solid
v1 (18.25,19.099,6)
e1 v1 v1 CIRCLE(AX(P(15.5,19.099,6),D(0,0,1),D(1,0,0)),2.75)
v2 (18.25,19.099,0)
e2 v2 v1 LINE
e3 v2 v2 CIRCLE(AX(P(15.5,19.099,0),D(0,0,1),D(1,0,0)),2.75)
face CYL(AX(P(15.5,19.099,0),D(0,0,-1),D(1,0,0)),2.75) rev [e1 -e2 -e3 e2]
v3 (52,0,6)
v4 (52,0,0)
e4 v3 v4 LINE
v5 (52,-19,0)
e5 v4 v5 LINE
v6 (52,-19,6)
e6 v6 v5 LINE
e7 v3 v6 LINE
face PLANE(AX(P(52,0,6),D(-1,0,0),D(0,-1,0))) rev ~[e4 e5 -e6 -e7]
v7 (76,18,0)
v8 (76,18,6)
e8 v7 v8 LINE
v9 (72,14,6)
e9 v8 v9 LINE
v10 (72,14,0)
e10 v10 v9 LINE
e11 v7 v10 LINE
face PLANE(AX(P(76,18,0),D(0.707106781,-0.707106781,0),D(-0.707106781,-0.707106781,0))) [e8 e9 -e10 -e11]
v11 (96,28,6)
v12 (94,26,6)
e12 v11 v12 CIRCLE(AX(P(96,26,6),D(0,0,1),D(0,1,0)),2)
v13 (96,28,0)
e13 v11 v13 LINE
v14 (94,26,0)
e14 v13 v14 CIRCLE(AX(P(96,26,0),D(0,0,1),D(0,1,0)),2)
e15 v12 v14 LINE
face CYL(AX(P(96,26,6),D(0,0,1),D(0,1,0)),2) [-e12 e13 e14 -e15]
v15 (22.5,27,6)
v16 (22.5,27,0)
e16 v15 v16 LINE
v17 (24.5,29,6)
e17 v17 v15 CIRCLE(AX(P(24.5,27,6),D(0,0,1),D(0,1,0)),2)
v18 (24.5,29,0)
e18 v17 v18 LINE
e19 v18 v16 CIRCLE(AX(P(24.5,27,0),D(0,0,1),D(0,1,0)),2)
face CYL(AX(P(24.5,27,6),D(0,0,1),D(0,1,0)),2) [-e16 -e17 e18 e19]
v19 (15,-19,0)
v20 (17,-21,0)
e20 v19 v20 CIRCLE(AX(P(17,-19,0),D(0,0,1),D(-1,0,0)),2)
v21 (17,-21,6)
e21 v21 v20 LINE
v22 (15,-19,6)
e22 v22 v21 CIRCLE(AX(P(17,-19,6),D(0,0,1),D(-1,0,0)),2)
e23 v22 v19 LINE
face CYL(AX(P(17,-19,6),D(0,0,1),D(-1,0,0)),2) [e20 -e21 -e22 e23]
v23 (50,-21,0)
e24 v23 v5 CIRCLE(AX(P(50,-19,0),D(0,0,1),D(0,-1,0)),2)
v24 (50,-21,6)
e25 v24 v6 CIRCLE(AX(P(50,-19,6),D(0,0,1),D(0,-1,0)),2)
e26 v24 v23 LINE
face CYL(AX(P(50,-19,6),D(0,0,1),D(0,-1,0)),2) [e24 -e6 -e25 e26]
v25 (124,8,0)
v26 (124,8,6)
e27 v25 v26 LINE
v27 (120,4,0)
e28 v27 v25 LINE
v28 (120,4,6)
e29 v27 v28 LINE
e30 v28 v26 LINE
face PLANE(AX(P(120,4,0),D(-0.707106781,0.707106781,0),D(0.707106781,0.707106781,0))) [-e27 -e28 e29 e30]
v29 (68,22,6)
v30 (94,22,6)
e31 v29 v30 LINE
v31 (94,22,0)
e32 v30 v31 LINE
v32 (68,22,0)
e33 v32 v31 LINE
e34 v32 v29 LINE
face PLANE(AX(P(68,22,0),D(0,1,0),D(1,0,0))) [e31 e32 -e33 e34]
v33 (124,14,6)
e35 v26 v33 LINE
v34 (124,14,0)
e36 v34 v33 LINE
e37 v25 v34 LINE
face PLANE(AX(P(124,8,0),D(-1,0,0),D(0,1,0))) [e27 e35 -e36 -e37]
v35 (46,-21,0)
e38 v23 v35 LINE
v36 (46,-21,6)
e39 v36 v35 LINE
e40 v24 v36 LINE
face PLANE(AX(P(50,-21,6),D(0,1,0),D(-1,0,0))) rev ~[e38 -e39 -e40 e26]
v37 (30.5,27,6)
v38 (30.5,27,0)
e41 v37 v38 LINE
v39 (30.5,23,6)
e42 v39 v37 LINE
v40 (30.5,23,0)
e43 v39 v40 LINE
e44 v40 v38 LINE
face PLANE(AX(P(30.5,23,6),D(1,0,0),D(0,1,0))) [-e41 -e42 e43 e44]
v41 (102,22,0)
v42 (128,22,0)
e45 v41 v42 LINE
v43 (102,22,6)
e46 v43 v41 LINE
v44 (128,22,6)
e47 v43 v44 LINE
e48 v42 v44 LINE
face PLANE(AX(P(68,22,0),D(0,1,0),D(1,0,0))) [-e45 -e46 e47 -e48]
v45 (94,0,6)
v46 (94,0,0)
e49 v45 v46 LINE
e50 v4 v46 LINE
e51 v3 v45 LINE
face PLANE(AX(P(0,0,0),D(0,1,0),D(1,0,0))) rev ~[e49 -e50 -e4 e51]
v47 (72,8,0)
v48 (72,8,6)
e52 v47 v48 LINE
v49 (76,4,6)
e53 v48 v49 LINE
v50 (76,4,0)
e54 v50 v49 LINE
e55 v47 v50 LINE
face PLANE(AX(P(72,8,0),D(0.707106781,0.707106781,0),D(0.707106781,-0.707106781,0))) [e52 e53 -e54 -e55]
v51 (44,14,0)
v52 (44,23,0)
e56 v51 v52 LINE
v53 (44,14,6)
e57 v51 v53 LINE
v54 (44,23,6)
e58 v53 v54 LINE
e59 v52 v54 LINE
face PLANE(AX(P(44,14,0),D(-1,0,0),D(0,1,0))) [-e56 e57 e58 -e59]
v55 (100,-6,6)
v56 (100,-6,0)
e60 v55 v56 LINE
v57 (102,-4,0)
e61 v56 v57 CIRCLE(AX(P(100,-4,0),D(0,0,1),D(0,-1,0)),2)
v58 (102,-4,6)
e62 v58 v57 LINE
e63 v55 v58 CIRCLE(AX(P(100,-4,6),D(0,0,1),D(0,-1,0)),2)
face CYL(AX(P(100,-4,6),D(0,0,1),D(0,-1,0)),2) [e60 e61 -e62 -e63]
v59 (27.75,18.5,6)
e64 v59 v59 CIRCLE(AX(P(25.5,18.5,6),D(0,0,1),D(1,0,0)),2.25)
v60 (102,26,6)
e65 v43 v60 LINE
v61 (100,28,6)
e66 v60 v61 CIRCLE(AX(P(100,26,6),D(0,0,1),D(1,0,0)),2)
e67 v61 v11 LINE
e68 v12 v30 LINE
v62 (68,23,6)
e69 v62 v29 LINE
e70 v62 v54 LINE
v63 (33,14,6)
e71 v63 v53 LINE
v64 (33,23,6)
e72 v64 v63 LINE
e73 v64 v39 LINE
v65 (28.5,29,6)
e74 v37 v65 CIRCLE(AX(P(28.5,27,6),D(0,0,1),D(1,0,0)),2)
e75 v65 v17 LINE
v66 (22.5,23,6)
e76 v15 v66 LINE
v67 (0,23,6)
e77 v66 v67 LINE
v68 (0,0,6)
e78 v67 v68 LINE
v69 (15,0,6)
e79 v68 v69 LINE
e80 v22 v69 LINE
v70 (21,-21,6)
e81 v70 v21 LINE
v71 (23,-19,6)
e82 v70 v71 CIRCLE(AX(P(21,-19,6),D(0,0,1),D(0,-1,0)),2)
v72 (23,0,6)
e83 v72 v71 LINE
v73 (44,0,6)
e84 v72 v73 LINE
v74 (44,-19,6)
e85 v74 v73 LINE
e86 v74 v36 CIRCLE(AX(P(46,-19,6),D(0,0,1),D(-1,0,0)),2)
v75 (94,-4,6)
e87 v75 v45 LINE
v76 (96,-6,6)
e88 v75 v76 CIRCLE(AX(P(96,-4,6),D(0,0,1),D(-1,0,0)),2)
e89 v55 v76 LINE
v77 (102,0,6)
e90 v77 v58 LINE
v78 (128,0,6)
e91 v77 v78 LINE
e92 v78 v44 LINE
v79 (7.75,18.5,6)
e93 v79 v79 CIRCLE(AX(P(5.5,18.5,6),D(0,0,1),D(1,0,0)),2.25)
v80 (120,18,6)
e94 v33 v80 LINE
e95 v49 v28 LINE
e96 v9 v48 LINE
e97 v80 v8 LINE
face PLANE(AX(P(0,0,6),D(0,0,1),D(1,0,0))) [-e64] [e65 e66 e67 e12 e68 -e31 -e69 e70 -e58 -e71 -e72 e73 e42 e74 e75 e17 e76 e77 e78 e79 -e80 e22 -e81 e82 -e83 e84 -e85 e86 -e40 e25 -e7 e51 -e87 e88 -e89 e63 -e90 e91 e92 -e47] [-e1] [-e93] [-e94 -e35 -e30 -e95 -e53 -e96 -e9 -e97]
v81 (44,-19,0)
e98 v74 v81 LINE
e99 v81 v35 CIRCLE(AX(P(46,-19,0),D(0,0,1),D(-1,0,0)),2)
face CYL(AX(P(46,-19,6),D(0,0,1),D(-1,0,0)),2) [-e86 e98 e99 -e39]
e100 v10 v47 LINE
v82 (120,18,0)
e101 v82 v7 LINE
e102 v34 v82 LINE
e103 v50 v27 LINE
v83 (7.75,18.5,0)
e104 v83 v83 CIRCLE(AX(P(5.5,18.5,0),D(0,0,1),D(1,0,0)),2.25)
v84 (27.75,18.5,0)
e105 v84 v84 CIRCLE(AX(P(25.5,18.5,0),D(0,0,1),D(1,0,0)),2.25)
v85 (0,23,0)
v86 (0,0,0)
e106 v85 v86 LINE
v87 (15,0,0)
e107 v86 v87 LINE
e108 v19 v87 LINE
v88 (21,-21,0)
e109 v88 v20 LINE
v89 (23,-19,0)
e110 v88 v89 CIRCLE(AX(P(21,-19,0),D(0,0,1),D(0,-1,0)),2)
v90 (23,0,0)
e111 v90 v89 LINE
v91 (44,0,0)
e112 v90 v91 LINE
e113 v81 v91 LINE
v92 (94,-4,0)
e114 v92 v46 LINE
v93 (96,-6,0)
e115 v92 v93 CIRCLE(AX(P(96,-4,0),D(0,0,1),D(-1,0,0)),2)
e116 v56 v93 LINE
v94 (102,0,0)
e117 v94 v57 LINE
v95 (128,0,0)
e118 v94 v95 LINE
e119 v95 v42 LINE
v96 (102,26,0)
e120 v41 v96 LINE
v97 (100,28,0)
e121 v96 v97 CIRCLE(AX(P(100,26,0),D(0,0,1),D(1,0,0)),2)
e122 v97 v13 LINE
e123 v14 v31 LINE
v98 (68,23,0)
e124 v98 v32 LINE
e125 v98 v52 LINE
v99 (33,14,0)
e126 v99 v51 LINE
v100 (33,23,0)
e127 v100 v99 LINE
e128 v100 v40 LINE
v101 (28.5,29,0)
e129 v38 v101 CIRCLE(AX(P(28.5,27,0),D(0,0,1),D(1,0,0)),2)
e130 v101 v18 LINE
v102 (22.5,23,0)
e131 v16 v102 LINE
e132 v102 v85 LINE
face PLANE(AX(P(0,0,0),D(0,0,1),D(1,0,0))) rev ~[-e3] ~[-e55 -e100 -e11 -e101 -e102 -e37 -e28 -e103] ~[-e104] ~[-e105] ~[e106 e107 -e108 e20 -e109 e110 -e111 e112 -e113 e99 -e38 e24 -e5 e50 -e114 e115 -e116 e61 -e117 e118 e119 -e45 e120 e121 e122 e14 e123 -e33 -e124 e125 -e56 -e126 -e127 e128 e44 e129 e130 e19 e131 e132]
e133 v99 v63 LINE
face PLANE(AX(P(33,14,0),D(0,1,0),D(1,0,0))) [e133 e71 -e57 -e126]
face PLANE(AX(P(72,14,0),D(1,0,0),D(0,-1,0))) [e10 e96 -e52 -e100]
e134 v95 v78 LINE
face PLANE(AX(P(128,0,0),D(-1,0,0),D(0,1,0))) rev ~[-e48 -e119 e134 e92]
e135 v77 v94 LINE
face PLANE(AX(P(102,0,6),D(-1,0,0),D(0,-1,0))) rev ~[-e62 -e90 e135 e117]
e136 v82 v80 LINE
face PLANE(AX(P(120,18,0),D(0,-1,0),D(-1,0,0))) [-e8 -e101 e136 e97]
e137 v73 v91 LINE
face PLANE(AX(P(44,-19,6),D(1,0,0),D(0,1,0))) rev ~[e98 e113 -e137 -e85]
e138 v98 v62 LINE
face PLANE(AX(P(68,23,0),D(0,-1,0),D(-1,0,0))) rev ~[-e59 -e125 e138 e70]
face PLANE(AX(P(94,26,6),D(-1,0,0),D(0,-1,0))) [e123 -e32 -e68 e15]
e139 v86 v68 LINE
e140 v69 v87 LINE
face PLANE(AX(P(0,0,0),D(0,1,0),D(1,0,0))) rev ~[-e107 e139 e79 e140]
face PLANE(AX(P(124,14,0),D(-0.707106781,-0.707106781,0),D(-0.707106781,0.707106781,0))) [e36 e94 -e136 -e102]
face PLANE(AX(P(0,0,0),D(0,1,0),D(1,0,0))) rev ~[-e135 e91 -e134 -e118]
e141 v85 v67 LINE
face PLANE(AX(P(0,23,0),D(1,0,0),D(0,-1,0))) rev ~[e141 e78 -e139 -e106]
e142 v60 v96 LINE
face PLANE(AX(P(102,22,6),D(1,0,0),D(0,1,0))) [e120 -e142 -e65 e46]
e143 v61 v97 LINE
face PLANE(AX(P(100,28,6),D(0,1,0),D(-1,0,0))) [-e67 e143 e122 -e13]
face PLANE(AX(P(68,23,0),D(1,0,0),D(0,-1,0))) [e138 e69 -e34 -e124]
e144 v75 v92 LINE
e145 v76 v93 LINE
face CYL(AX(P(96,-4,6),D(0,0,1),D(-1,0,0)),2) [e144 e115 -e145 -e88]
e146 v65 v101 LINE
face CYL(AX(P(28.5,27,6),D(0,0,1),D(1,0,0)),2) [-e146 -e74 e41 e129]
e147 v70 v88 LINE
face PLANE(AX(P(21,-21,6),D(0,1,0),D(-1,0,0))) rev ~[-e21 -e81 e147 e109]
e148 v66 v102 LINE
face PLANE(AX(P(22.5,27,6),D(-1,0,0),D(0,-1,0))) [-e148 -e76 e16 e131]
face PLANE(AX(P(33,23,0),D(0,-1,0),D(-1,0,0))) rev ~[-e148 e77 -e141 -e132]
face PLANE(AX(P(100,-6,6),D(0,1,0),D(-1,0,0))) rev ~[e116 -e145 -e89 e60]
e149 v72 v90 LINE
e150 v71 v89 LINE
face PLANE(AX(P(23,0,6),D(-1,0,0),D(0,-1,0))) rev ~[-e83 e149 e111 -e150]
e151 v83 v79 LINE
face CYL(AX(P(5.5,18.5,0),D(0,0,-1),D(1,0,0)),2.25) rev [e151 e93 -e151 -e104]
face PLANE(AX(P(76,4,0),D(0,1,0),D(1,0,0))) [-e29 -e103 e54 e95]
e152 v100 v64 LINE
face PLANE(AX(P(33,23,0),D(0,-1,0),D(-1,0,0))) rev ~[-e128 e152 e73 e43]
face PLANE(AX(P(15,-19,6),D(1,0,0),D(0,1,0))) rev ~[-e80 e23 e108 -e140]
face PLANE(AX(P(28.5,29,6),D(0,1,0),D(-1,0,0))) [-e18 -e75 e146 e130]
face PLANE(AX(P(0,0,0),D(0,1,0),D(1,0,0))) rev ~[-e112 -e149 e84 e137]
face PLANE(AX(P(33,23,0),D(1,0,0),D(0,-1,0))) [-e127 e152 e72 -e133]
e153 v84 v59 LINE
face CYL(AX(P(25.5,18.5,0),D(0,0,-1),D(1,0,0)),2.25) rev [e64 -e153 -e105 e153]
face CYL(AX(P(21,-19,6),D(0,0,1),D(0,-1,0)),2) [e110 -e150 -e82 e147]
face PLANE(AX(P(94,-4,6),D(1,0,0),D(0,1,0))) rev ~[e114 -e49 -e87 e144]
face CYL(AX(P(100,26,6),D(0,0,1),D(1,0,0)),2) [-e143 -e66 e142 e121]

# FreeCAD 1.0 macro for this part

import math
import FreeCAD as App
import Part
import Sketcher
Q = App.Units.Quantity

doc = App.newDocument("Part")
body = doc.addObject("PartDesign::Body", "Body")

# Sketch on XY plane
sketch1 = body.newObject("Sketcher::SketchObject", "Sketch")
sketch1.AttachmentSupport = (doc.getObject("XY_Plane"), [""])
sketch1.MapMode = "FlatFace"
sketch1.addGeometry([
    Part.LineSegment(App.Vector(0, 23, 0), App.Vector(0, 0, 0)),  # 0
    Part.LineSegment(App.Vector(0, 0, 0), App.Vector(128, 0, 0)),  # 1
    Part.LineSegment(App.Vector(128, 0, 0), App.Vector(128, 22, 0)),  # 2
    Part.LineSegment(App.Vector(128, 22, 0), App.Vector(68, 22, 0)),  # 3
    Part.LineSegment(App.Vector(68, 22, 0), App.Vector(68, 23, 0)),  # 4
    Part.LineSegment(App.Vector(68, 23, 0), App.Vector(44, 23, 0)),  # 5
    Part.LineSegment(App.Vector(44, 23, 0), App.Vector(44, 14, 0)),  # 6
    Part.LineSegment(App.Vector(44, 14, 0), App.Vector(33, 14, 0)),  # 7
    Part.LineSegment(App.Vector(33, 14, 0), App.Vector(33, 23, 0)),  # 8
    Part.LineSegment(App.Vector(33, 23, 0), App.Vector(0, 23, 0)),  # 9
    Part.LineSegment(App.Vector(72, 8, 0), App.Vector(72, 14, 0)),  # 10
    Part.LineSegment(App.Vector(72, 14, 0), App.Vector(76, 18, 0)),  # 11
    Part.LineSegment(App.Vector(76, 18, 0), App.Vector(120, 18, 0)),  # 12
    Part.LineSegment(App.Vector(120, 18, 0), App.Vector(124, 14, 0)),  # 13
    Part.LineSegment(App.Vector(124, 14, 0), App.Vector(124, 8, 0)),  # 14
    Part.LineSegment(App.Vector(124, 8, 0), App.Vector(120, 4, 0)),  # 15
    Part.LineSegment(App.Vector(120, 4, 0), App.Vector(76, 4, 0)),  # 16
    Part.LineSegment(App.Vector(76, 4, 0), App.Vector(72, 8, 0)),  # 17
    Part.Circle(App.Vector(5.5, 18.5, 0), App.Vector(0, 0, 1), 2.2),  # 18
    Part.Circle(App.Vector(15.5, 19.1, 0), App.Vector(0, 0, 1), 2.8),  # 19
    Part.Circle(App.Vector(25.5, 18.5, 0), App.Vector(0, 0, 1), 2.2),  # 20
], False)
sketch1.addConstraint([
    Sketcher.Constraint("Coincident", 0, 2, 1, 1),
    Sketcher.Constraint("Coincident", 1, 2, 2, 1),
    Sketcher.Constraint("Coincident", 2, 2, 3, 1),
    Sketcher.Constraint("Coincident", 3, 2, 4, 1),
    Sketcher.Constraint("Coincident", 4, 2, 5, 1),
    Sketcher.Constraint("Coincident", 5, 2, 6, 1),
    Sketcher.Constraint("Coincident", 6, 2, 7, 1),
    Sketcher.Constraint("Coincident", 7, 2, 8, 1),
    Sketcher.Constraint("Coincident", 8, 2, 9, 1),
    Sketcher.Constraint("Coincident", 9, 2, 0, 1),
    Sketcher.Constraint("Coincident", 10, 2, 11, 1),
    Sketcher.Constraint("Coincident", 11, 2, 12, 1),
    Sketcher.Constraint("Coincident", 12, 2, 13, 1),
    Sketcher.Constraint("Coincident", 13, 2, 14, 1),
    Sketcher.Constraint("Coincident", 14, 2, 15, 1),
    Sketcher.Constraint("Coincident", 15, 2, 16, 1),
    Sketcher.Constraint("Coincident", 16, 2, 17, 1),
    Sketcher.Constraint("Coincident", 17, 2, 10, 1),
    Sketcher.Constraint("Vertical", 0),
    Sketcher.Constraint("Horizontal", 1),
    Sketcher.Constraint("Vertical", 2),
    Sketcher.Constraint("Horizontal", 3),
    Sketcher.Constraint("Vertical", 4),
    Sketcher.Constraint("Horizontal", 5),
    Sketcher.Constraint("Vertical", 6),
    Sketcher.Constraint("Horizontal", 7),
    Sketcher.Constraint("Vertical", 8),
    Sketcher.Constraint("Horizontal", 9),
    Sketcher.Constraint("Vertical", 10),
    Sketcher.Constraint("Horizontal", 12),
    Sketcher.Constraint("Vertical", 14),
    Sketcher.Constraint("Horizontal", 16),
    Sketcher.Constraint("Coincident", 0, 2, -1, 1),
    Sketcher.Constraint("Equal", 18, 20),
    Sketcher.Constraint("Perpendicular", 11, 13),
    Sketcher.Constraint("Perpendicular", 13, 15),
    Sketcher.Constraint("Perpendicular", 15, 17),
    Sketcher.Constraint("Horizontal", 18, 3, 20, 3),
    Sketcher.Constraint("Horizontal", 5, 2, 8, 2),
    Sketcher.Constraint("Horizontal", 7, 2, 10, 2),
    Sketcher.Constraint("Horizontal", 10, 2, 13, 2),
    Sketcher.Constraint("Horizontal", 14, 2, 17, 2),
    Sketcher.Constraint("Vertical", 12, 2, 15, 2),
    Sketcher.Constraint("Vertical", 11, 2, 16, 2),
    Sketcher.Constraint("Diameter", 18, Q("4.5 mm")),
    Sketcher.Constraint("Diameter", 19, Q("5.5 mm")),
    Sketcher.Constraint("DistanceX", 1, 1, 1, 2, Q("128 mm")),
    Sketcher.Constraint("DistanceX", 3, 2, 3, 1, Q("60 mm")),
    Sketcher.Constraint("DistanceX", 7, 2, 7, 1, Q("11 mm")),
    Sketcher.Constraint("DistanceX", 9, 2, 9, 1, Q("33 mm")),
    Sketcher.Constraint("DistanceY", 0, 2, 0, 1, Q("23 mm")),
    Sketcher.Constraint("DistanceY", 2, 1, 2, 2, Q("22 mm")),
    Sketcher.Constraint("DistanceY", 6, 2, 6, 1, Q("9 mm")),
    Sketcher.Constraint("DistanceY", -1, 1, 14, 2, Q("8 mm")),
    Sketcher.Constraint("DistanceY", -1, 1, 15, 2, Q("4 mm")),
    Sketcher.Constraint("DistanceX", 18, 3, 19, 3, Q("10 mm")),
    Sketcher.Constraint("DistanceX", 19, 3, 20, 3, Q("10 mm")),
    Sketcher.Constraint("DistanceX", 3, 2, 10, 2, Q("4 mm")),
    Sketcher.Constraint("DistanceX", 12, 2, 2, 2, Q("8 mm")),
    Sketcher.Constraint("DistanceX", -1, 1, 18, 3, Q("5.5 mm")),
    Sketcher.Constraint("DistanceY", 20, 3, 4, 2, Q("4.5 mm")),
    Sketcher.Constraint("DistanceY", -1, 1, 19, 3, Q("19.099 mm")),
])
pad1 = body.newObject("PartDesign::Pad", "Pad")
pad1.Profile = sketch1
pad1.Length = 6

# Sketch on XY plane
sketch2 = body.newObject("Sketcher::SketchObject", "Sketch001")
sketch2.AttachmentSupport = (doc.getObject("XY_Plane"), [""])
sketch2.MapMode = "FlatFace"
sketch2.AttachmentOffset = App.Placement(App.Vector(0, 0, 6), App.Rotation())
sketch2.addGeometry([
    Part.LineSegment(App.Vector(94, 22, 0), App.Vector(102, 22, 0)),  # 0
    Part.LineSegment(App.Vector(102, 22, 0), App.Vector(102, 26, 0)),  # 1
    Part.ArcOfCircle(Part.Circle(App.Vector(100, 26, 0), App.Vector(0, 0, 1), 2), math.radians(0), math.radians(90)),  # 2
    Part.LineSegment(App.Vector(100, 28, 0), App.Vector(96, 28, 0)),  # 3
    Part.ArcOfCircle(Part.Circle(App.Vector(96, 26, 0), App.Vector(0, 0, 1), 2), math.radians(90), math.radians(180)),  # 4
    Part.LineSegment(App.Vector(94, 26, 0), App.Vector(94, 22, 0)),  # 5
    Part.LineSegment(App.Vector(102, 0, 0), App.Vector(94, 0, 0)),  # 6
    Part.LineSegment(App.Vector(94, 0, 0), App.Vector(94, -4, 0)),  # 7
    Part.ArcOfCircle(Part.Circle(App.Vector(96, -4, 0), App.Vector(0, 0, 1), 2), math.radians(180), math.radians(270)),  # 8
    Part.LineSegment(App.Vector(96, -6, 0), App.Vector(100, -6, 0)),  # 9
    Part.ArcOfCircle(Part.Circle(App.Vector(100, -4, 0), App.Vector(0, 0, 1), 2), math.radians(-90), math.radians(0)),  # 10
    Part.LineSegment(App.Vector(102, -4, 0), App.Vector(102, 0, 0)),  # 11
    Part.LineSegment(App.Vector(52, 0, 0), App.Vector(44, 0, 0)),  # 12
    Part.LineSegment(App.Vector(44, 0, 0), App.Vector(44, -19, 0)),  # 13
    Part.ArcOfCircle(Part.Circle(App.Vector(46, -19, 0), App.Vector(0, 0, 1), 2), math.radians(180), math.radians(270)),  # 14
    Part.LineSegment(App.Vector(46, -21, 0), App.Vector(50, -21, 0)),  # 15
    Part.ArcOfCircle(Part.Circle(App.Vector(50, -19, 0), App.Vector(0, 0, 1), 2), math.radians(-90), math.radians(0)),  # 16
    Part.LineSegment(App.Vector(52, -19, 0), App.Vector(52, 0, 0)),  # 17
    Part.LineSegment(App.Vector(23, 0, 0), App.Vector(15, 0, 0)),  # 18
    Part.LineSegment(App.Vector(15, 0, 0), App.Vector(15, -19, 0)),  # 19
    Part.ArcOfCircle(Part.Circle(App.Vector(17, -19, 0), App.Vector(0, 0, 1), 2), math.radians(180), math.radians(270)),  # 20
    Part.LineSegment(App.Vector(17, -21, 0), App.Vector(21, -21, 0)),  # 21
    Part.ArcOfCircle(Part.Circle(App.Vector(21, -19, 0), App.Vector(0, 0, 1), 2), math.radians(-90), math.radians(0)),  # 22
    Part.LineSegment(App.Vector(23, -19, 0), App.Vector(23, 0, 0)),  # 23
    Part.LineSegment(App.Vector(22.5, 27, 0), App.Vector(22.5, 23, 0)),  # 24
    Part.LineSegment(App.Vector(22.5, 23, 0), App.Vector(30.5, 23, 0)),  # 25
    Part.LineSegment(App.Vector(30.5, 23, 0), App.Vector(30.5, 27, 0)),  # 26
    Part.ArcOfCircle(Part.Circle(App.Vector(28.5, 27, 0), App.Vector(0, 0, 1), 2), math.radians(0), math.radians(90)),  # 27
    Part.LineSegment(App.Vector(28.5, 29, 0), App.Vector(24.5, 29, 0)),  # 28
    Part.ArcOfCircle(Part.Circle(App.Vector(24.5, 27, 0), App.Vector(0, 0, 1), 2), math.radians(90), math.radians(180)),  # 29
], False)
sketch2.addConstraint([
    Sketcher.Constraint("Coincident", 0, 2, 1, 1),
    Sketcher.Constraint("Tangent", 1, 2, 2, 1),
    Sketcher.Constraint("Tangent", 2, 2, 3, 1),
    Sketcher.Constraint("Tangent", 3, 2, 4, 1),
    Sketcher.Constraint("Tangent", 4, 2, 5, 1),
    Sketcher.Constraint("Coincident", 5, 2, 0, 1),
    Sketcher.Constraint("Coincident", 6, 2, 7, 1),
    Sketcher.Constraint("Tangent", 7, 2, 8, 1),
    Sketcher.Constraint("Tangent", 8, 2, 9, 1),
    Sketcher.Constraint("Tangent", 9, 2, 10, 1),
    Sketcher.Constraint("Tangent", 10, 2, 11, 1),
    Sketcher.Constraint("Coincident", 11, 2, 6, 1),
    Sketcher.Constraint("Coincident", 12, 2, 13, 1),
    Sketcher.Constraint("Tangent", 13, 2, 14, 1),
    Sketcher.Constraint("Tangent", 14, 2, 15, 1),
    Sketcher.Constraint("Tangent", 15, 2, 16, 1),
    Sketcher.Constraint("Tangent", 16, 2, 17, 1),
    Sketcher.Constraint("Coincident", 17, 2, 12, 1),
    Sketcher.Constraint("Coincident", 18, 2, 19, 1),
    Sketcher.Constraint("Tangent", 19, 2, 20, 1),
    Sketcher.Constraint("Tangent", 20, 2, 21, 1),
    Sketcher.Constraint("Tangent", 21, 2, 22, 1),
    Sketcher.Constraint("Tangent", 22, 2, 23, 1),
    Sketcher.Constraint("Coincident", 23, 2, 18, 1),
    Sketcher.Constraint("Coincident", 24, 2, 25, 1),
    Sketcher.Constraint("Coincident", 25, 2, 26, 1),
    Sketcher.Constraint("Tangent", 26, 2, 27, 1),
    Sketcher.Constraint("Tangent", 27, 2, 28, 1),
    Sketcher.Constraint("Tangent", 28, 2, 29, 1),
    Sketcher.Constraint("Tangent", 29, 2, 24, 1),
    Sketcher.Constraint("Horizontal", 0),
    Sketcher.Constraint("Vertical", 1),
    Sketcher.Constraint("Horizontal", 3),
    Sketcher.Constraint("Vertical", 5),
    Sketcher.Constraint("Horizontal", 6),
    Sketcher.Constraint("Vertical", 7),
    Sketcher.Constraint("Horizontal", 9),
    Sketcher.Constraint("Vertical", 11),
    Sketcher.Constraint("Horizontal", 12),
    Sketcher.Constraint("Vertical", 13),
    Sketcher.Constraint("Horizontal", 15),
    Sketcher.Constraint("Vertical", 17),
    Sketcher.Constraint("Horizontal", 18),
    Sketcher.Constraint("Vertical", 19),
    Sketcher.Constraint("Horizontal", 21),
    Sketcher.Constraint("Vertical", 23),
    Sketcher.Constraint("Vertical", 24),
    Sketcher.Constraint("Horizontal", 25),
    Sketcher.Constraint("Vertical", 26),
    Sketcher.Constraint("Horizontal", 28),
    Sketcher.Constraint("Equal", 2, 4),
    Sketcher.Constraint("Equal", 4, 8),
    Sketcher.Constraint("Equal", 8, 10),
    Sketcher.Constraint("Equal", 10, 14),
    Sketcher.Constraint("Equal", 14, 16),
    Sketcher.Constraint("Equal", 16, 20),
    Sketcher.Constraint("Equal", 20, 22),
    Sketcher.Constraint("Equal", 22, 27),
    Sketcher.Constraint("Equal", 27, 29),
    Sketcher.Constraint("PointOnObject", 6, 2, -1),
    Sketcher.Constraint("PointOnObject", 12, 2, -1),
    Sketcher.Constraint("PointOnObject", 18, 2, -1),
    Sketcher.Constraint("Horizontal", 16, 3, 20, 3),
    Sketcher.Constraint("Vertical", 4, 3, 8, 3),
    Sketcher.Constraint("Vertical", 2, 3, 10, 3),
    Sketcher.Constraint("Equal", 6, 12),
    Sketcher.Constraint("Equal", 12, 18),
    Sketcher.Constraint("Equal", 18, 25),
    Sketcher.Constraint("Equal", 28, 1),
    Sketcher.Constraint("Equal", 5, 7),
    Sketcher.Constraint("Equal", 11, 24),
    Sketcher.Constraint("Radius", 2, Q("2 mm")),
    Sketcher.Constraint("DistanceX", 0, 1, 0, 2, Q("8 mm")),
    Sketcher.Constraint("DistanceY", -1, 1, 2, 3, Q("26 mm")),
    Sketcher.Constraint("DistanceX", -1, 1, 22, 3, Q("21 mm")),
    Sketcher.Constraint("DistanceY", 14, 2, -1, 1, Q("21 mm")),
    Sketcher.Constraint("DistanceX", -1, 1, 24, 2, Q("22.5 mm")),
    Sketcher.Constraint("DistanceX", -1, 1, 2, 3, Q("100 mm")),
    Sketcher.Constraint("DistanceX", -1, 1, 14, 3, Q("46 mm")),
    Sketcher.Constraint("DistanceY", -1, 1, 27, 3, Q("27 mm")),
])
pad2 = body.newObject("PartDesign::Pad", "Pad001")
pad2.Profile = sketch2
pad2.Length = 6
pad2.Reversed = True

doc.recompute()
